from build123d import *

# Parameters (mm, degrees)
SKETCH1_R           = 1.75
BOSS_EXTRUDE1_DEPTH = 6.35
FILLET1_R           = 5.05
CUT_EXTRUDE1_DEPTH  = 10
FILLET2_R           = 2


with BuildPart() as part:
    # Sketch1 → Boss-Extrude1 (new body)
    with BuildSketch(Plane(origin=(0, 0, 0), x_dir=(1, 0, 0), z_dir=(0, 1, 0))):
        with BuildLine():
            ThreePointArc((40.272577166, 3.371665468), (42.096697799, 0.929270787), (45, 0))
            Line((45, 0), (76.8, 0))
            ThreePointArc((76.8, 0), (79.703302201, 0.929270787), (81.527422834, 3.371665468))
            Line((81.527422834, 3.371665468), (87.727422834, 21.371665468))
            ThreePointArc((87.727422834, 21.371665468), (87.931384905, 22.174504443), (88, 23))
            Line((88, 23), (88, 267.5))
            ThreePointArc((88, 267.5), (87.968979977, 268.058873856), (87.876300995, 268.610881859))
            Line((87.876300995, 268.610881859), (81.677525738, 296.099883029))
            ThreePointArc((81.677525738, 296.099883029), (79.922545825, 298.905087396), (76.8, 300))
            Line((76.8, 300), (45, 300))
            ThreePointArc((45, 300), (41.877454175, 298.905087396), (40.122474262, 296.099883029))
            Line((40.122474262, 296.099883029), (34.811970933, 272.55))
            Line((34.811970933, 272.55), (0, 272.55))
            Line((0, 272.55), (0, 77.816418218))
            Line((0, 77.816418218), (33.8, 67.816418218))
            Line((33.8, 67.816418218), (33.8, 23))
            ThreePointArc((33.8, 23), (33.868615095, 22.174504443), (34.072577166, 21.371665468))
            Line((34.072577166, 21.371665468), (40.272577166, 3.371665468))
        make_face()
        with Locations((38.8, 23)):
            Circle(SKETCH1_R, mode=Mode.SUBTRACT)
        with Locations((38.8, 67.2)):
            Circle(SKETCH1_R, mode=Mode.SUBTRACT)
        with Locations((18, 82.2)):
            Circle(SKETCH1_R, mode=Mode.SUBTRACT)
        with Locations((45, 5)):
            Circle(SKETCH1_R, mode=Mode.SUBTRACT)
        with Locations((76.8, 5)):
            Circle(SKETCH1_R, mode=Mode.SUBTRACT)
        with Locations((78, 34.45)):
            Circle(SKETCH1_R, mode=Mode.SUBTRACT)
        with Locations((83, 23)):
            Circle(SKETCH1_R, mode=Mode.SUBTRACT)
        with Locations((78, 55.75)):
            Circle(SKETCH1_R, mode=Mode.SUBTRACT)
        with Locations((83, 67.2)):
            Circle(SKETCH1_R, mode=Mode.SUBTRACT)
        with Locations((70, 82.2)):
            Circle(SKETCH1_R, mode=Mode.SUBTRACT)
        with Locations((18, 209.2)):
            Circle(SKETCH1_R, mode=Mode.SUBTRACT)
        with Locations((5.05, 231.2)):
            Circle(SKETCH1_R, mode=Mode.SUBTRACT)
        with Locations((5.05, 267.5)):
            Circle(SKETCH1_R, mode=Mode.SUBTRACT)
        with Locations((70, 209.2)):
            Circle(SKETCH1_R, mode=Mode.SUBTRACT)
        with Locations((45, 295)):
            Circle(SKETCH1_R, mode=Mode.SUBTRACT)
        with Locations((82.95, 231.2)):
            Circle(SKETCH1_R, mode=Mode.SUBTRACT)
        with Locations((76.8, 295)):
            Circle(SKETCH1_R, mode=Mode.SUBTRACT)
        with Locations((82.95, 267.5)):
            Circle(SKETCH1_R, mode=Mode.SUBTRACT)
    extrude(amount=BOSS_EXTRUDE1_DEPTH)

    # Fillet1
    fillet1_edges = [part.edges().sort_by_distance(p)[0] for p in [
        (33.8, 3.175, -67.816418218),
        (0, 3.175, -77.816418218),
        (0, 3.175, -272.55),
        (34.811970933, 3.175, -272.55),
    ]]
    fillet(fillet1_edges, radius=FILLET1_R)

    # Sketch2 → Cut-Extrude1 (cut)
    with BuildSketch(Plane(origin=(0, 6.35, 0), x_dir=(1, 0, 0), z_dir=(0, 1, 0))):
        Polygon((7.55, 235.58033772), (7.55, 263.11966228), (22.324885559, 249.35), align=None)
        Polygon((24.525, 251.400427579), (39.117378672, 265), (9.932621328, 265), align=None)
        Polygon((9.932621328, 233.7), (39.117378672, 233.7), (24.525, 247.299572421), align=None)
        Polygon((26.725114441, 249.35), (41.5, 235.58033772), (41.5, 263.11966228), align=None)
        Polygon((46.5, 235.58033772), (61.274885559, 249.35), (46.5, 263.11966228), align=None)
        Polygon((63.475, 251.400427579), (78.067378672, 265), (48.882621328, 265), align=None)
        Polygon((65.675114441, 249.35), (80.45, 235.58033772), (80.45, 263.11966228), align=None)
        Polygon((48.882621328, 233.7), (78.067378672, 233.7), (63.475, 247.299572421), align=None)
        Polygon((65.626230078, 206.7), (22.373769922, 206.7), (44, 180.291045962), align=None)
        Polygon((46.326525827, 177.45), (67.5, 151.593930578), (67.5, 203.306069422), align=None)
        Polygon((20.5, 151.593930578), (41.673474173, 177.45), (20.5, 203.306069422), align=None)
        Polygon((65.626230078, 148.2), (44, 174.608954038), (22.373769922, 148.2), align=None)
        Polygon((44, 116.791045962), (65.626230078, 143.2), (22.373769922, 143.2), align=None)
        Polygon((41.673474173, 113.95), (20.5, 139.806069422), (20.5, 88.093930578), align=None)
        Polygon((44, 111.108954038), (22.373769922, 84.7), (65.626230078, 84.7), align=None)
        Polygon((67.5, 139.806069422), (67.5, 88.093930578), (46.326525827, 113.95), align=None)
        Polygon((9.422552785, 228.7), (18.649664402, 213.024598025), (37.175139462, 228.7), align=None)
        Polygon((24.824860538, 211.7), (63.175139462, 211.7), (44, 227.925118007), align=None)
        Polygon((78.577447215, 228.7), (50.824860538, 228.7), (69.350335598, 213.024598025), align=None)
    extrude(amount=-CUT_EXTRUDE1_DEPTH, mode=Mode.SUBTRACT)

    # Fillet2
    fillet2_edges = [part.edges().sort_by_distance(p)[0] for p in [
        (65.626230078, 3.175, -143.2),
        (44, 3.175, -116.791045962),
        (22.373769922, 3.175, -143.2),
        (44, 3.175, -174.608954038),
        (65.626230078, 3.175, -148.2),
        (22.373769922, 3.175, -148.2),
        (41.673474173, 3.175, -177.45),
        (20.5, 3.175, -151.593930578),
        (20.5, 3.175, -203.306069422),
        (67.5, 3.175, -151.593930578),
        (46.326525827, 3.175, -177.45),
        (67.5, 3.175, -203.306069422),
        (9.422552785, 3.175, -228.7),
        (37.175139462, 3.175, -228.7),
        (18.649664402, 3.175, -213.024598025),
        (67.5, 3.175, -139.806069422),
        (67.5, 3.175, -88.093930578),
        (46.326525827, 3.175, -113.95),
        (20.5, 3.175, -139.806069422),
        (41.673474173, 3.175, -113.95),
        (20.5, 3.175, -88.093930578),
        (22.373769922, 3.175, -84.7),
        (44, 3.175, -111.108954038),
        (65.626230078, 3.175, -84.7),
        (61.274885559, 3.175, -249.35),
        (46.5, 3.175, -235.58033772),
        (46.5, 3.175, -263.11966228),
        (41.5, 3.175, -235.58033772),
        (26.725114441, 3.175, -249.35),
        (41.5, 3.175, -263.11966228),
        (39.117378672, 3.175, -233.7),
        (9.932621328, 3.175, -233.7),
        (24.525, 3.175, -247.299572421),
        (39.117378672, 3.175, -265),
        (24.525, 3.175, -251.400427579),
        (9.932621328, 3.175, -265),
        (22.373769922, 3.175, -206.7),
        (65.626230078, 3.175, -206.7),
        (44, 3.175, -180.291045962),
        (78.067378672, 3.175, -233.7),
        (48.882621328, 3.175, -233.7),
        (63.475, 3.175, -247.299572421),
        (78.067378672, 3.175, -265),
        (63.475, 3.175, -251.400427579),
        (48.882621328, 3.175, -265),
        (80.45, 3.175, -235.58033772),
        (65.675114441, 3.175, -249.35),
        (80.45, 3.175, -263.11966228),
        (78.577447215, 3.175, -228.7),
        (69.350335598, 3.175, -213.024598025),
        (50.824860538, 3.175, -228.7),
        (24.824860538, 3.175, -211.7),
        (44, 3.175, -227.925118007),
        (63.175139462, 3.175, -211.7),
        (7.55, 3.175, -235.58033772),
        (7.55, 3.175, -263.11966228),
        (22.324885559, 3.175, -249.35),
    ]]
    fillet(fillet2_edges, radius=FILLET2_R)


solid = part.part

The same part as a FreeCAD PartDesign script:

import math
import FreeCAD as App
import Part
import Sketcher


def edges_at(feature, points):
    """Names of the edges that pass closest to the given points."""
    edges = feature.Shape.Edges
    near = lambda p: min(range(len(edges)), key=lambda i: edges[i].distToShape(Part.Vertex(*p))[0])
    return sorted({f"Edge{near(p) + 1}" for p in points})


def add_polygon(sketch, points):
    """Adds a closed chain of lines whose ends are joined by coincident constraints."""
    first, n = sketch.GeometryCount, len(points)
    for a, b in zip(points, points[1:] + points[:1]):
        sketch.addGeometry(Part.LineSegment(App.Vector(*a, 0), App.Vector(*b, 0)), False)
    for i in range(n):
        sketch.addConstraint(Sketcher.Constraint("Coincident", first + i, 2, first + (i + 1) % n, 1))

doc = App.newDocument("Part")
body = doc.addObject("PartDesign::Body", "Body")

# Sketch on XZ plane
sketch1 = doc.addObject("Sketcher::SketchObject", "Sketch")
body.addObject(sketch1)
sketch1.AttachmentSupport = (doc.XZ_Plane, [""])
sketch1.MapMode = "FlatFace"
sketch1.addGeometry([
    Part.ArcOfCircle(Part.Circle(App.Vector(45, -5, 0), App.Vector(0, 0, 1), 5), math.radians(90), math.radians(161)),  # 0
    Part.LineSegment(App.Vector(45, 0, 0), App.Vector(76.8, 0, 0)),  # 1
    Part.ArcOfCircle(Part.Circle(App.Vector(76.8, -5, 0), App.Vector(0, 0, 1), 5), math.radians(19), math.radians(90)),  # 2
    Part.LineSegment(App.Vector(81.5, -3.4, 0), App.Vector(87.7, -21.4, 0)),  # 3
    Part.ArcOfCircle(Part.Circle(App.Vector(83, -23, 0), App.Vector(0, 0, 1), 5), math.radians(0), math.radians(19.01)),  # 4
    Part.LineSegment(App.Vector(88, -23, 0), App.Vector(88, -267.5, 0)),  # 5
    Part.ArcOfCircle(Part.Circle(App.Vector(82.9, -267.5, 0), App.Vector(0, 0, 1), 5.1), math.radians(-12.71), math.radians(0)),  # 6
    Part.LineSegment(App.Vector(87.9, -268.6, 0), App.Vector(81.7, -296.1, 0)),  # 7
    Part.ArcOfCircle(Part.Circle(App.Vector(76.8, -295, 0), App.Vector(0, 0, 1), 5), math.radians(-90), math.radians(-13)),  # 8
    Part.LineSegment(App.Vector(76.8, -300, 0), App.Vector(45, -300, 0)),  # 9
    Part.ArcOfCircle(Part.Circle(App.Vector(45, -295, 0), App.Vector(0, 0, 1), 5), math.radians(-167), math.radians(-90)),  # 10
    Part.LineSegment(App.Vector(40.1, -296.1, 0), App.Vector(34.8, -272.6, 0)),  # 11
    Part.LineSegment(App.Vector(34.8, -272.6, 0), App.Vector(0, -272.6, 0)),  # 12
    Part.LineSegment(App.Vector(0, -272.6, 0), App.Vector(0, -77.8, 0)),  # 13
    Part.LineSegment(App.Vector(0, -77.8, 0), App.Vector(33.8, -67.8, 0)),  # 14
    Part.LineSegment(App.Vector(33.8, -67.8, 0), App.Vector(33.8, -23, 0)),  # 15
    Part.ArcOfCircle(Part.Circle(App.Vector(38.8, -23, 0), App.Vector(0, 0, 1), 5), math.radians(160.99), math.radians(180)),  # 16
    Part.LineSegment(App.Vector(34.1, -21.4, 0), App.Vector(40.3, -3.4, 0)),  # 17
    Part.Circle(App.Vector(38.8, -23, 0), App.Vector(0, 0, 1), 1.8),  # 18
    Part.Circle(App.Vector(38.8, -67.2, 0), App.Vector(0, 0, 1), 1.8),  # 19
    Part.Circle(App.Vector(18, -82.2, 0), App.Vector(0, 0, 1), 1.8),  # 20
    Part.Circle(App.Vector(45, -5, 0), App.Vector(0, 0, 1), 1.8),  # 21
    Part.Circle(App.Vector(76.8, -5, 0), App.Vector(0, 0, 1), 1.8),  # 22
    Part.Circle(App.Vector(78, -34.5, 0), App.Vector(0, 0, 1), 1.8),  # 23
    Part.Circle(App.Vector(83, -23, 0), App.Vector(0, 0, 1), 1.8),  # 24
    Part.Circle(App.Vector(78, -55.8, 0), App.Vector(0, 0, 1), 1.8),  # 25
    Part.Circle(App.Vector(83, -67.2, 0), App.Vector(0, 0, 1), 1.8),  # 26
    Part.Circle(App.Vector(70, -82.2, 0), App.Vector(0, 0, 1), 1.8),  # 27
    Part.Circle(App.Vector(18, -209.2, 0), App.Vector(0, 0, 1), 1.8),  # 28
    Part.Circle(App.Vector(5, -231.2, 0), App.Vector(0, 0, 1), 1.8),  # 29
    Part.Circle(App.Vector(5, -267.5, 0), App.Vector(0, 0, 1), 1.8),  # 30
    Part.Circle(App.Vector(70, -209.2, 0), App.Vector(0, 0, 1), 1.8),  # 31
    Part.Circle(App.Vector(45, -295, 0), App.Vector(0, 0, 1), 1.8),  # 32
    Part.Circle(App.Vector(83, -231.2, 0), App.Vector(0, 0, 1), 1.8),  # 33
    Part.Circle(App.Vector(83, -267.5, 0), App.Vector(0, 0, 1), 1.8),  # 34
    Part.Circle(App.Vector(76.8, -295, 0), App.Vector(0, 0, 1), 1.8),  # 35
], False)
sketch1.addConstraint([
    Sketcher.Constraint("Tangent", 0, 1, 1, 1),
    Sketcher.Constraint("Tangent", 1, 2, 2, 2),
    Sketcher.Constraint("Tangent", 2, 1, 3, 1),
    Sketcher.Constraint("Tangent", 3, 2, 4, 2),
    Sketcher.Constraint("Tangent", 4, 1, 5, 1),
    Sketcher.Constraint("Tangent", 5, 2, 6, 2),
    Sketcher.Constraint("Tangent", 6, 1, 7, 1),
    Sketcher.Constraint("Tangent", 7, 2, 8, 2),
    Sketcher.Constraint("Tangent", 8, 1, 9, 1),
    Sketcher.Constraint("Tangent", 9, 2, 10, 2),
    Sketcher.Constraint("Tangent", 10, 1, 11, 1),
    Sketcher.Constraint("Coincident", 11, 2, 12, 1),
    Sketcher.Constraint("Coincident", 12, 2, 13, 1),
    Sketcher.Constraint("Coincident", 13, 2, 14, 1),
    Sketcher.Constraint("Coincident", 14, 2, 15, 1),
    Sketcher.Constraint("Tangent", 15, 2, 16, 2),
    Sketcher.Constraint("Tangent", 16, 1, 17, 1),
    Sketcher.Constraint("Tangent", 17, 2, 0, 2),
    Sketcher.Constraint("Horizontal", 1),
    Sketcher.Constraint("Vertical", 5),
    Sketcher.Constraint("Horizontal", 9),
    Sketcher.Constraint("Horizontal", 12),
    Sketcher.Constraint("Vertical", 13),
    Sketcher.Constraint("Vertical", 15),
    Sketcher.Constraint("Coincident", 18, 3, 16, 3),
    Sketcher.Constraint("Coincident", 21, 3, 0, 3),
    Sketcher.Constraint("Coincident", 22, 3, 2, 3),
    Sketcher.Constraint("Coincident", 24, 3, 4, 3),
    Sketcher.Constraint("Coincident", 32, 3, 10, 3),
    Sketcher.Constraint("Coincident", 34, 3, 6, 3),
    Sketcher.Constraint("Coincident", 35, 3, 8, 3),
    Sketcher.Constraint("Equal", 0, 2),
    Sketcher.Constraint("Equal", 2, 4),
    Sketcher.Constraint("Equal", 4, 8),
    Sketcher.Constraint("Equal", 8, 10),
    Sketcher.Constraint("Equal", 10, 16),
    Sketcher.Constraint("Equal", 18, 19),
    Sketcher.Constraint("Equal", 19, 20),
    Sketcher.Constraint("Equal", 20, 21),
    Sketcher.Constraint("Equal", 21, 22),
    Sketcher.Constraint("Equal", 22, 23),
    Sketcher.Constraint("Equal", 23, 24),
    Sketcher.Constraint("Equal", 24, 25),
    Sketcher.Constraint("Equal", 25, 26),
    Sketcher.Constraint("Equal", 26, 27),
    Sketcher.Constraint("Equal", 27, 28),
    Sketcher.Constraint("Equal", 28, 29),
    Sketcher.Constraint("Equal", 29, 30),
    Sketcher.Constraint("Equal", 30, 31),
    Sketcher.Constraint("Equal", 31, 32),
    Sketcher.Constraint("Equal", 32, 33),
    Sketcher.Constraint("Equal", 33, 34),
    Sketcher.Constraint("Equal", 34, 35),
    Sketcher.Constraint("PointOnObject", 0, 1, -1),
    Sketcher.Constraint("PointOnObject", 12, 2, -2),
    Sketcher.Constraint("Horizontal", 4, 3, 16, 3),
    Sketcher.Constraint("Horizontal", 19, 3, 26, 3),
    Sketcher.Constraint("Horizontal", 20, 3, 27, 3),
    Sketcher.Constraint("Horizontal", 6, 3, 30, 3),
    Sketcher.Constraint("Horizontal", 28, 3, 31, 3),
    Sketcher.Constraint("Horizontal", 29, 3, 33, 3),
    Sketcher.Constraint("Horizontal", 7, 2, 10, 1),
    Sketcher.Constraint("Horizontal", 3, 2, 16, 1),
    Sketcher.Constraint("Vertical", 2, 3, 8, 3),
    Sketcher.Constraint("Vertical", 0, 3, 10, 3),
    Sketcher.Constraint("Vertical", 18, 3, 19, 3),
    Sketcher.Constraint("Vertical", 23, 3, 25, 3),
    Sketcher.Constraint("Vertical", 24, 3, 26, 3),
    Sketcher.Constraint("Vertical", 20, 3, 28, 3),
    Sketcher.Constraint("Vertical", 29, 3, 30, 3),
    Sketcher.Constraint("Vertical", 27, 3, 31, 3),
    Sketcher.Constraint("Vertical", 6, 3, 33, 3),
    Sketcher.Constraint("Radius", 0, 5.0),
    Sketcher.Constraint("Diameter", 18, 3.5),
    Sketcher.Constraint("Radius", 6, 5.05),
    Sketcher.Constraint("DistanceX", 1, 1, 1, 2, 31.8),
    Sketcher.Constraint("DistanceY", 5, 2, 5, 1, 244.5),
    Sketcher.Constraint("DistanceX", -1, 1, 0, 3, 45.0),
    Sketcher.Constraint("DistanceX", -1, 1, 4, 3, 83.0),
    Sketcher.Constraint("DistanceY", 4, 3, -1, 1, 23.0),
    Sketcher.Constraint("DistanceY", 8, 3, -1, 1, 295.0),
    Sketcher.Constraint("DistanceX", -1, 1, 20, 3, 18.0),
    Sketcher.Constraint("DistanceX", -1, 1, 23, 3, 78.0),
    Sketcher.Constraint("DistanceX", -1, 1, 27, 3, 70.0),
    Sketcher.Constraint("DistanceY", 20, 3, 19, 3, 15.0),
    Sketcher.Constraint("DistanceY", 28, 3, 20, 3, 127.0),
    Sketcher.Constraint("DistanceY", 29, 3, 28, 3, 22.0),
    Sketcher.Constraint("DistanceY", 13, 2, 14, 2, 10.0),
    Sketcher.Constraint("DistanceY", 19, 3, -1, 1, 67.2),
    Sketcher.Constraint("DistanceY", 25, 3, 23, 3, 21.3),
    Sketcher.Constraint("DistanceX", 29, 3, 6, 3, 77.9),
    Sketcher.Constraint("DistanceY", 23, 3, -1, 1, 34.45),
    Sketcher.Constraint("DistanceY", 11, 2, -1, 1, 272.55),
    Sketcher.Constraint("DistanceY", 13, 1, 13, 2, 194.733582),
])
pad1 = doc.addObject("PartDesign::Pad", "Pad")
body.addObject(pad1)
pad1.Profile = sketch1
pad1.Length = 6.35
pad1.Reversed = True
doc.recompute()

fillet = doc.addObject("PartDesign::Fillet", "Fillet")
body.addObject(fillet)
fillet.Base = (pad1, edges_at(pad1, [
    (33.8, 3.175, -67.816),
    (0, 3.175, -77.816),
    (0, 3.175, -272.55),
    (34.812, 3.175, -272.55),
]))
fillet.Radius = 5.05

# Sketch on XZ plane
sketch2 = doc.addObject("Sketcher::SketchObject", "Sketch001")
body.addObject(sketch2)
sketch2.AttachmentSupport = (doc.XZ_Plane, [""])
sketch2.MapMode = "FlatFace"
sketch2.AttachmentOffset = App.Placement(App.Vector(0, 0, -6.35), App.Rotation())
add_polygon(sketch2, [(8, -263), (8, -236), (22, -249)])  # lines 0-2
add_polygon(sketch2, [(25, -251), (39, -265), (10, -265)])  # lines 3-5
add_polygon(sketch2, [(10, -234), (39, -234), (25, -247)])  # lines 6-8
add_polygon(sketch2, [(27, -249), (42, -236), (42, -263)])  # lines 9-11
add_polygon(sketch2, [(46, -236), (61, -249), (46, -263)])  # lines 12-14
add_polygon(sketch2, [(63, -251), (78, -265), (49, -265)])  # lines 15-17
add_polygon(sketch2, [(66, -249), (80, -236), (80, -263)])  # lines 18-20
add_polygon(sketch2, [(49, -234), (78, -234), (63, -247)])  # lines 21-23
add_polygon(sketch2, [(66, -207), (22, -207), (44, -180)])  # lines 24-26
add_polygon(sketch2, [(46, -177), (68, -152), (68, -203)])  # lines 27-29
add_polygon(sketch2, [(20, -152), (42, -177), (20, -203)])  # lines 30-32
add_polygon(sketch2, [(66, -148), (44, -175), (22, -148)])  # lines 33-35
add_polygon(sketch2, [(44, -117), (66, -143), (22, -143)])  # lines 36-38
add_polygon(sketch2, [(42, -114), (20, -140), (20, -88)])  # lines 39-41
add_polygon(sketch2, [(44, -111), (22, -85), (66, -85)])  # lines 42-44
add_polygon(sketch2, [(68, -88), (68, -140), (46, -114)])  # lines 45-47
add_polygon(sketch2, [(9, -229), (19, -213), (37, -229)])  # lines 48-50
add_polygon(sketch2, [(25, -212), (63, -212), (44, -228)])  # lines 51-53
add_polygon(sketch2, [(79, -229), (51, -229), (69, -213)])  # lines 54-56
sketch2.addConstraint([
    Sketcher.Constraint("Vertical", 0),
    Sketcher.Constraint("Horizontal", 4),
    Sketcher.Constraint("Horizontal", 6),
    Sketcher.Constraint("Vertical", 10),
    Sketcher.Constraint("Vertical", 14),
    Sketcher.Constraint("Horizontal", 16),
    Sketcher.Constraint("Vertical", 19),
    Sketcher.Constraint("Horizontal", 21),
    Sketcher.Constraint("Horizontal", 24),
    Sketcher.Constraint("Vertical", 28),
    Sketcher.Constraint("Vertical", 32),
    Sketcher.Constraint("Horizontal", 35),
    Sketcher.Constraint("Horizontal", 37),
    Sketcher.Constraint("Vertical", 40),
    Sketcher.Constraint("Horizontal", 43),
    Sketcher.Constraint("Vertical", 45),
    Sketcher.Constraint("Horizontal", 50),
    Sketcher.Constraint("Horizontal", 51),
    Sketcher.Constraint("Horizontal", 54),
    Sketcher.Constraint("Parallel", 1, 3),
    Sketcher.Constraint("Parallel", 2, 5),
    Sketcher.Constraint("Parallel", 5, 7),
    Sketcher.Constraint("Parallel", 3, 8),
    Sketcher.Constraint("Parallel", 7, 9),
    Sketcher.Constraint("Parallel", 8, 11),
    Sketcher.Constraint("Parallel", 11, 12),
    Sketcher.Constraint("Parallel", 9, 13),
    Sketcher.Constraint("Parallel", 12, 15),
    Sketcher.Constraint("Parallel", 13, 17),
    Sketcher.Constraint("Parallel", 17, 18),
    Sketcher.Constraint("Parallel", 15, 20),
    Sketcher.Constraint("Parallel", 18, 22),
    Sketcher.Constraint("Parallel", 20, 23),
    Sketcher.Constraint("Parallel", 25, 27),
    Sketcher.Constraint("Parallel", 26, 29),
    Sketcher.Constraint("Parallel", 29, 30),
    Sketcher.Constraint("Parallel", 27, 31),
    Sketcher.Constraint("Parallel", 31, 33),
    Sketcher.Constraint("Parallel", 30, 34),
    Sketcher.Constraint("Parallel", 34, 36),
    Sketcher.Constraint("Parallel", 33, 38),
    Sketcher.Constraint("Parallel", 38, 39),
    Sketcher.Constraint("Parallel", 36, 41),
    Sketcher.Constraint("Parallel", 41, 42),
    Sketcher.Constraint("Parallel", 39, 44),
    Sketcher.Constraint("Parallel", 42, 46),
    Sketcher.Constraint("Parallel", 44, 47),
    Sketcher.Constraint("Parallel", 49, 53),
    Sketcher.Constraint("Parallel", 52, 55),
    Sketcher.Constraint("Horizontal", 0, 2, 9, 2),
    Sketcher.Constraint("Horizontal", 2, 2, 10, 2),
    Sketcher.Constraint("Horizontal", 1, 2, 11, 2),
    Sketcher.Constraint("Horizontal", 11, 2, 12, 2),
    Sketcher.Constraint("Horizontal", 10, 2, 13, 2),
    Sketcher.Constraint("Horizontal", 4, 2, 15, 2),
    Sketcher.Constraint("Horizontal", 5, 2, 17, 2),
    Sketcher.Constraint("Horizontal", 14, 2, 18, 2),
    Sketcher.Constraint("Horizontal", 13, 2, 19, 2),
    Sketcher.Constraint("Horizontal", 8, 2, 21, 2),
    Sketcher.Constraint("Horizontal", 7, 2, 22, 2),
    Sketcher.Constraint("Horizontal", 29, 2, 30, 2),
    Sketcher.Constraint("Horizontal", 28, 2, 31, 2),
    Sketcher.Constraint("Horizontal", 27, 2, 32, 2),
    Sketcher.Constraint("Horizontal", 39, 2, 45, 2),
    Sketcher.Constraint("Horizontal", 41, 2, 46, 2),
    Sketcher.Constraint("Horizontal", 50, 2, 54, 2),
    Sketcher.Constraint("Horizontal", 48, 2, 55, 2),
    Sketcher.Constraint("Vertical", 3, 2, 6, 2),
    Sketcher.Constraint("Vertical", 5, 2, 7, 2),
    Sketcher.Constraint("Vertical", 15, 2, 21, 2),
    Sketcher.Constraint("Vertical", 25, 2, 33, 2),
    Sketcher.Constraint("Vertical", 24, 2, 34, 2),
    Sketcher.Constraint("Vertical", 35, 2, 36, 2),
    Sketcher.Constraint("Vertical", 34, 2, 37, 2),
    Sketcher.Constraint("Vertical", 32, 2, 39, 2),
    Sketcher.Constraint("Vertical", 30, 2, 41, 2),
    Sketcher.Constraint("Vertical", 37, 2, 42, 2),
    Sketcher.Constraint("Vertical", 36, 2, 43, 2),
    Sketcher.Constraint("Vertical", 28, 2, 45, 2),
    Sketcher.Constraint("Vertical", 44, 2, 52, 2),
    Sketcher.Constraint("Equal", 50, 54),
    Sketcher.Constraint("Equal", 52, 53),
    Sketcher.Constraint("DistanceY", 3, 2, -1, 1, 265.0),
    Sketcher.Constraint("DistanceX", -1, 1, 25, 2, 44.0),
    Sketcher.Constraint("DistanceX", 10, 2, 13, 2, 5.0),
    Sketcher.Constraint("DistanceY", 8, 2, 24, 2, 27.0),
    Sketcher.Constraint("DistanceX", 32, 2, 27, 2, 47.0),
    Sketcher.Constraint("DistanceY", 35, 2, 36, 2, 5.0),
    Sketcher.Constraint("DistanceY", 6, 2, 49, 2, 5.0),
    Sketcher.Constraint("DistanceY", 51, 2, 26, 2, 5.0),
    Sketcher.Constraint("DistanceY", 6, 2, -1, 1, 233.7),
    Sketcher.Constraint("DistanceX", -1, 1, 9, 2, 41.5),
    Sketcher.Constraint("DistanceX", -1, 1, 27, 2, 67.5),
    Sketcher.Constraint("DistanceY", 34, 2, -1, 1, 148.2),
    Sketcher.Constraint("DistanceY", 42, 2, -1, 1, 84.7),
    Sketcher.Constraint("DistanceY", 32, 2, 40, 2, 63.5),
    Sketcher.Constraint("DistanceX", -1, 1, 0, 2, 7.55),
    Sketcher.Constraint("DistanceY", 1, 2, -1, 1, 249.35),
    Sketcher.Constraint("DistanceX", -1, 1, 18, 2, 80.45),
    Sketcher.Constraint("DistanceY", 29, 2, -1, 1, 177.45),
    Sketcher.Constraint("DistanceX", 3, 2, 15, 2, 38.95),
    Sketcher.Constraint("DistanceX", -1, 1, 5, 2, 24.525),
    Sketcher.Constraint("DistanceX", 24, 2, 24, 1, 43.25246),
    Sketcher.Constraint("DistanceX", 51, 1, 51, 2, 38.350279),
    Sketcher.Constraint("DistanceY", 28, 2, 28, 1, 51.712139),
    Sketcher.Constraint("DistanceY", 48, 2, -1, 1, 213.024598),
    Sketcher.Constraint("Distance", 27, 33.419341),
    Sketcher.Constraint("DistanceX", 4, 2, 4, 1, 29.184757),
    Sketcher.Constraint("DistanceX", 50, 2, 50, 1, 27.752587),
    Sketcher.Constraint("DistanceY", 0, 1, 0, 2, 27.539325),
    Sketcher.Constraint("DistanceX", -1, 1, 49, 2, 37.175139),
    Sketcher.Constraint("DistanceY", 52, 2, -1, 1, 227.925118),
    Sketcher.Constraint("DistanceX", -1, 1, 54, 2, 50.824861),
    Sketcher.Constraint("DistanceY", 5, 2, 0, 2, 15.82009),
])
pocket1 = doc.addObject("PartDesign::Pocket", "Pocket")
body.addObject(pocket1)
pocket1.Profile = sketch2
pocket1.Length = 10
pocket1.Reversed = True
doc.recompute()

fillet2 = doc.addObject("PartDesign::Fillet", "Fillet001")
body.addObject(fillet2)
fillet2.Base = (pocket1, edges_at(pocket1, [
    (65.626, 3.175, -143.2),
    (44, 3.175, -116.791),
    (22.374, 3.175, -143.2),
    (44, 3.175, -174.609),
    (65.626, 3.175, -148.2),
    (22.374, 3.175, -148.2),
    (41.673, 3.175, -177.45),
    (20.5, 3.175, -151.594),
    (20.5, 3.175, -203.306),
    (67.5, 3.175, -151.594),
    (46.327, 3.175, -177.45),
    (67.5, 3.175, -203.306),
    (9.423, 3.175, -228.7),
    (37.175, 3.175, -228.7),
    (18.65, 3.175, -213.025),
    (67.5, 3.175, -139.806),
    (67.5, 3.175, -88.094),
    (46.327, 3.175, -113.95),
    (20.5, 3.175, -139.806),
    (41.673, 3.175, -113.95),
    (20.5, 3.175, -88.094),
    (22.374, 3.175, -84.7),
    (44, 3.175, -111.109),
    (65.626, 3.175, -84.7),
    (61.275, 3.175, -249.35),
    (46.5, 3.175, -235.58),
    (46.5, 3.175, -263.12),
    (41.5, 3.175, -235.58),
    (26.725, 3.175, -249.35),
    (41.5, 3.175, -263.12),
    (39.117, 3.175, -233.7),
    (9.933, 3.175, -233.7),
    (24.525, 3.175, -247.3),
    (39.117, 3.175, -265),
    (24.525, 3.175, -251.4),
    (9.933, 3.175, -265),
    (22.374, 3.175, -206.7),
    (65.626, 3.175, -206.7),
    (44, 3.175, -180.291),
    (78.067, 3.175, -233.7),
    (48.883, 3.175, -233.7),
    (63.475, 3.175, -247.3),
    (78.067, 3.175, -265),
    (63.475, 3.175, -251.4),
    (48.883, 3.175, -265),
    (80.45, 3.175, -235.58),
    (65.675, 3.175, -249.35),
    (80.45, 3.175, -263.12),
    (78.577, 3.175, -228.7),
    (69.35, 3.175, -213.025),
    (50.825, 3.175, -228.7),
    (24.825, 3.175, -211.7),
    (44, 3.175, -227.925),
    (63.175, 3.175, -211.7),
    (7.55, 3.175, -235.58),
    (7.55, 3.175, -263.12),
    (22.325, 3.175, -249.35),
]))
fillet2.Radius = 2

doc.recompute()
